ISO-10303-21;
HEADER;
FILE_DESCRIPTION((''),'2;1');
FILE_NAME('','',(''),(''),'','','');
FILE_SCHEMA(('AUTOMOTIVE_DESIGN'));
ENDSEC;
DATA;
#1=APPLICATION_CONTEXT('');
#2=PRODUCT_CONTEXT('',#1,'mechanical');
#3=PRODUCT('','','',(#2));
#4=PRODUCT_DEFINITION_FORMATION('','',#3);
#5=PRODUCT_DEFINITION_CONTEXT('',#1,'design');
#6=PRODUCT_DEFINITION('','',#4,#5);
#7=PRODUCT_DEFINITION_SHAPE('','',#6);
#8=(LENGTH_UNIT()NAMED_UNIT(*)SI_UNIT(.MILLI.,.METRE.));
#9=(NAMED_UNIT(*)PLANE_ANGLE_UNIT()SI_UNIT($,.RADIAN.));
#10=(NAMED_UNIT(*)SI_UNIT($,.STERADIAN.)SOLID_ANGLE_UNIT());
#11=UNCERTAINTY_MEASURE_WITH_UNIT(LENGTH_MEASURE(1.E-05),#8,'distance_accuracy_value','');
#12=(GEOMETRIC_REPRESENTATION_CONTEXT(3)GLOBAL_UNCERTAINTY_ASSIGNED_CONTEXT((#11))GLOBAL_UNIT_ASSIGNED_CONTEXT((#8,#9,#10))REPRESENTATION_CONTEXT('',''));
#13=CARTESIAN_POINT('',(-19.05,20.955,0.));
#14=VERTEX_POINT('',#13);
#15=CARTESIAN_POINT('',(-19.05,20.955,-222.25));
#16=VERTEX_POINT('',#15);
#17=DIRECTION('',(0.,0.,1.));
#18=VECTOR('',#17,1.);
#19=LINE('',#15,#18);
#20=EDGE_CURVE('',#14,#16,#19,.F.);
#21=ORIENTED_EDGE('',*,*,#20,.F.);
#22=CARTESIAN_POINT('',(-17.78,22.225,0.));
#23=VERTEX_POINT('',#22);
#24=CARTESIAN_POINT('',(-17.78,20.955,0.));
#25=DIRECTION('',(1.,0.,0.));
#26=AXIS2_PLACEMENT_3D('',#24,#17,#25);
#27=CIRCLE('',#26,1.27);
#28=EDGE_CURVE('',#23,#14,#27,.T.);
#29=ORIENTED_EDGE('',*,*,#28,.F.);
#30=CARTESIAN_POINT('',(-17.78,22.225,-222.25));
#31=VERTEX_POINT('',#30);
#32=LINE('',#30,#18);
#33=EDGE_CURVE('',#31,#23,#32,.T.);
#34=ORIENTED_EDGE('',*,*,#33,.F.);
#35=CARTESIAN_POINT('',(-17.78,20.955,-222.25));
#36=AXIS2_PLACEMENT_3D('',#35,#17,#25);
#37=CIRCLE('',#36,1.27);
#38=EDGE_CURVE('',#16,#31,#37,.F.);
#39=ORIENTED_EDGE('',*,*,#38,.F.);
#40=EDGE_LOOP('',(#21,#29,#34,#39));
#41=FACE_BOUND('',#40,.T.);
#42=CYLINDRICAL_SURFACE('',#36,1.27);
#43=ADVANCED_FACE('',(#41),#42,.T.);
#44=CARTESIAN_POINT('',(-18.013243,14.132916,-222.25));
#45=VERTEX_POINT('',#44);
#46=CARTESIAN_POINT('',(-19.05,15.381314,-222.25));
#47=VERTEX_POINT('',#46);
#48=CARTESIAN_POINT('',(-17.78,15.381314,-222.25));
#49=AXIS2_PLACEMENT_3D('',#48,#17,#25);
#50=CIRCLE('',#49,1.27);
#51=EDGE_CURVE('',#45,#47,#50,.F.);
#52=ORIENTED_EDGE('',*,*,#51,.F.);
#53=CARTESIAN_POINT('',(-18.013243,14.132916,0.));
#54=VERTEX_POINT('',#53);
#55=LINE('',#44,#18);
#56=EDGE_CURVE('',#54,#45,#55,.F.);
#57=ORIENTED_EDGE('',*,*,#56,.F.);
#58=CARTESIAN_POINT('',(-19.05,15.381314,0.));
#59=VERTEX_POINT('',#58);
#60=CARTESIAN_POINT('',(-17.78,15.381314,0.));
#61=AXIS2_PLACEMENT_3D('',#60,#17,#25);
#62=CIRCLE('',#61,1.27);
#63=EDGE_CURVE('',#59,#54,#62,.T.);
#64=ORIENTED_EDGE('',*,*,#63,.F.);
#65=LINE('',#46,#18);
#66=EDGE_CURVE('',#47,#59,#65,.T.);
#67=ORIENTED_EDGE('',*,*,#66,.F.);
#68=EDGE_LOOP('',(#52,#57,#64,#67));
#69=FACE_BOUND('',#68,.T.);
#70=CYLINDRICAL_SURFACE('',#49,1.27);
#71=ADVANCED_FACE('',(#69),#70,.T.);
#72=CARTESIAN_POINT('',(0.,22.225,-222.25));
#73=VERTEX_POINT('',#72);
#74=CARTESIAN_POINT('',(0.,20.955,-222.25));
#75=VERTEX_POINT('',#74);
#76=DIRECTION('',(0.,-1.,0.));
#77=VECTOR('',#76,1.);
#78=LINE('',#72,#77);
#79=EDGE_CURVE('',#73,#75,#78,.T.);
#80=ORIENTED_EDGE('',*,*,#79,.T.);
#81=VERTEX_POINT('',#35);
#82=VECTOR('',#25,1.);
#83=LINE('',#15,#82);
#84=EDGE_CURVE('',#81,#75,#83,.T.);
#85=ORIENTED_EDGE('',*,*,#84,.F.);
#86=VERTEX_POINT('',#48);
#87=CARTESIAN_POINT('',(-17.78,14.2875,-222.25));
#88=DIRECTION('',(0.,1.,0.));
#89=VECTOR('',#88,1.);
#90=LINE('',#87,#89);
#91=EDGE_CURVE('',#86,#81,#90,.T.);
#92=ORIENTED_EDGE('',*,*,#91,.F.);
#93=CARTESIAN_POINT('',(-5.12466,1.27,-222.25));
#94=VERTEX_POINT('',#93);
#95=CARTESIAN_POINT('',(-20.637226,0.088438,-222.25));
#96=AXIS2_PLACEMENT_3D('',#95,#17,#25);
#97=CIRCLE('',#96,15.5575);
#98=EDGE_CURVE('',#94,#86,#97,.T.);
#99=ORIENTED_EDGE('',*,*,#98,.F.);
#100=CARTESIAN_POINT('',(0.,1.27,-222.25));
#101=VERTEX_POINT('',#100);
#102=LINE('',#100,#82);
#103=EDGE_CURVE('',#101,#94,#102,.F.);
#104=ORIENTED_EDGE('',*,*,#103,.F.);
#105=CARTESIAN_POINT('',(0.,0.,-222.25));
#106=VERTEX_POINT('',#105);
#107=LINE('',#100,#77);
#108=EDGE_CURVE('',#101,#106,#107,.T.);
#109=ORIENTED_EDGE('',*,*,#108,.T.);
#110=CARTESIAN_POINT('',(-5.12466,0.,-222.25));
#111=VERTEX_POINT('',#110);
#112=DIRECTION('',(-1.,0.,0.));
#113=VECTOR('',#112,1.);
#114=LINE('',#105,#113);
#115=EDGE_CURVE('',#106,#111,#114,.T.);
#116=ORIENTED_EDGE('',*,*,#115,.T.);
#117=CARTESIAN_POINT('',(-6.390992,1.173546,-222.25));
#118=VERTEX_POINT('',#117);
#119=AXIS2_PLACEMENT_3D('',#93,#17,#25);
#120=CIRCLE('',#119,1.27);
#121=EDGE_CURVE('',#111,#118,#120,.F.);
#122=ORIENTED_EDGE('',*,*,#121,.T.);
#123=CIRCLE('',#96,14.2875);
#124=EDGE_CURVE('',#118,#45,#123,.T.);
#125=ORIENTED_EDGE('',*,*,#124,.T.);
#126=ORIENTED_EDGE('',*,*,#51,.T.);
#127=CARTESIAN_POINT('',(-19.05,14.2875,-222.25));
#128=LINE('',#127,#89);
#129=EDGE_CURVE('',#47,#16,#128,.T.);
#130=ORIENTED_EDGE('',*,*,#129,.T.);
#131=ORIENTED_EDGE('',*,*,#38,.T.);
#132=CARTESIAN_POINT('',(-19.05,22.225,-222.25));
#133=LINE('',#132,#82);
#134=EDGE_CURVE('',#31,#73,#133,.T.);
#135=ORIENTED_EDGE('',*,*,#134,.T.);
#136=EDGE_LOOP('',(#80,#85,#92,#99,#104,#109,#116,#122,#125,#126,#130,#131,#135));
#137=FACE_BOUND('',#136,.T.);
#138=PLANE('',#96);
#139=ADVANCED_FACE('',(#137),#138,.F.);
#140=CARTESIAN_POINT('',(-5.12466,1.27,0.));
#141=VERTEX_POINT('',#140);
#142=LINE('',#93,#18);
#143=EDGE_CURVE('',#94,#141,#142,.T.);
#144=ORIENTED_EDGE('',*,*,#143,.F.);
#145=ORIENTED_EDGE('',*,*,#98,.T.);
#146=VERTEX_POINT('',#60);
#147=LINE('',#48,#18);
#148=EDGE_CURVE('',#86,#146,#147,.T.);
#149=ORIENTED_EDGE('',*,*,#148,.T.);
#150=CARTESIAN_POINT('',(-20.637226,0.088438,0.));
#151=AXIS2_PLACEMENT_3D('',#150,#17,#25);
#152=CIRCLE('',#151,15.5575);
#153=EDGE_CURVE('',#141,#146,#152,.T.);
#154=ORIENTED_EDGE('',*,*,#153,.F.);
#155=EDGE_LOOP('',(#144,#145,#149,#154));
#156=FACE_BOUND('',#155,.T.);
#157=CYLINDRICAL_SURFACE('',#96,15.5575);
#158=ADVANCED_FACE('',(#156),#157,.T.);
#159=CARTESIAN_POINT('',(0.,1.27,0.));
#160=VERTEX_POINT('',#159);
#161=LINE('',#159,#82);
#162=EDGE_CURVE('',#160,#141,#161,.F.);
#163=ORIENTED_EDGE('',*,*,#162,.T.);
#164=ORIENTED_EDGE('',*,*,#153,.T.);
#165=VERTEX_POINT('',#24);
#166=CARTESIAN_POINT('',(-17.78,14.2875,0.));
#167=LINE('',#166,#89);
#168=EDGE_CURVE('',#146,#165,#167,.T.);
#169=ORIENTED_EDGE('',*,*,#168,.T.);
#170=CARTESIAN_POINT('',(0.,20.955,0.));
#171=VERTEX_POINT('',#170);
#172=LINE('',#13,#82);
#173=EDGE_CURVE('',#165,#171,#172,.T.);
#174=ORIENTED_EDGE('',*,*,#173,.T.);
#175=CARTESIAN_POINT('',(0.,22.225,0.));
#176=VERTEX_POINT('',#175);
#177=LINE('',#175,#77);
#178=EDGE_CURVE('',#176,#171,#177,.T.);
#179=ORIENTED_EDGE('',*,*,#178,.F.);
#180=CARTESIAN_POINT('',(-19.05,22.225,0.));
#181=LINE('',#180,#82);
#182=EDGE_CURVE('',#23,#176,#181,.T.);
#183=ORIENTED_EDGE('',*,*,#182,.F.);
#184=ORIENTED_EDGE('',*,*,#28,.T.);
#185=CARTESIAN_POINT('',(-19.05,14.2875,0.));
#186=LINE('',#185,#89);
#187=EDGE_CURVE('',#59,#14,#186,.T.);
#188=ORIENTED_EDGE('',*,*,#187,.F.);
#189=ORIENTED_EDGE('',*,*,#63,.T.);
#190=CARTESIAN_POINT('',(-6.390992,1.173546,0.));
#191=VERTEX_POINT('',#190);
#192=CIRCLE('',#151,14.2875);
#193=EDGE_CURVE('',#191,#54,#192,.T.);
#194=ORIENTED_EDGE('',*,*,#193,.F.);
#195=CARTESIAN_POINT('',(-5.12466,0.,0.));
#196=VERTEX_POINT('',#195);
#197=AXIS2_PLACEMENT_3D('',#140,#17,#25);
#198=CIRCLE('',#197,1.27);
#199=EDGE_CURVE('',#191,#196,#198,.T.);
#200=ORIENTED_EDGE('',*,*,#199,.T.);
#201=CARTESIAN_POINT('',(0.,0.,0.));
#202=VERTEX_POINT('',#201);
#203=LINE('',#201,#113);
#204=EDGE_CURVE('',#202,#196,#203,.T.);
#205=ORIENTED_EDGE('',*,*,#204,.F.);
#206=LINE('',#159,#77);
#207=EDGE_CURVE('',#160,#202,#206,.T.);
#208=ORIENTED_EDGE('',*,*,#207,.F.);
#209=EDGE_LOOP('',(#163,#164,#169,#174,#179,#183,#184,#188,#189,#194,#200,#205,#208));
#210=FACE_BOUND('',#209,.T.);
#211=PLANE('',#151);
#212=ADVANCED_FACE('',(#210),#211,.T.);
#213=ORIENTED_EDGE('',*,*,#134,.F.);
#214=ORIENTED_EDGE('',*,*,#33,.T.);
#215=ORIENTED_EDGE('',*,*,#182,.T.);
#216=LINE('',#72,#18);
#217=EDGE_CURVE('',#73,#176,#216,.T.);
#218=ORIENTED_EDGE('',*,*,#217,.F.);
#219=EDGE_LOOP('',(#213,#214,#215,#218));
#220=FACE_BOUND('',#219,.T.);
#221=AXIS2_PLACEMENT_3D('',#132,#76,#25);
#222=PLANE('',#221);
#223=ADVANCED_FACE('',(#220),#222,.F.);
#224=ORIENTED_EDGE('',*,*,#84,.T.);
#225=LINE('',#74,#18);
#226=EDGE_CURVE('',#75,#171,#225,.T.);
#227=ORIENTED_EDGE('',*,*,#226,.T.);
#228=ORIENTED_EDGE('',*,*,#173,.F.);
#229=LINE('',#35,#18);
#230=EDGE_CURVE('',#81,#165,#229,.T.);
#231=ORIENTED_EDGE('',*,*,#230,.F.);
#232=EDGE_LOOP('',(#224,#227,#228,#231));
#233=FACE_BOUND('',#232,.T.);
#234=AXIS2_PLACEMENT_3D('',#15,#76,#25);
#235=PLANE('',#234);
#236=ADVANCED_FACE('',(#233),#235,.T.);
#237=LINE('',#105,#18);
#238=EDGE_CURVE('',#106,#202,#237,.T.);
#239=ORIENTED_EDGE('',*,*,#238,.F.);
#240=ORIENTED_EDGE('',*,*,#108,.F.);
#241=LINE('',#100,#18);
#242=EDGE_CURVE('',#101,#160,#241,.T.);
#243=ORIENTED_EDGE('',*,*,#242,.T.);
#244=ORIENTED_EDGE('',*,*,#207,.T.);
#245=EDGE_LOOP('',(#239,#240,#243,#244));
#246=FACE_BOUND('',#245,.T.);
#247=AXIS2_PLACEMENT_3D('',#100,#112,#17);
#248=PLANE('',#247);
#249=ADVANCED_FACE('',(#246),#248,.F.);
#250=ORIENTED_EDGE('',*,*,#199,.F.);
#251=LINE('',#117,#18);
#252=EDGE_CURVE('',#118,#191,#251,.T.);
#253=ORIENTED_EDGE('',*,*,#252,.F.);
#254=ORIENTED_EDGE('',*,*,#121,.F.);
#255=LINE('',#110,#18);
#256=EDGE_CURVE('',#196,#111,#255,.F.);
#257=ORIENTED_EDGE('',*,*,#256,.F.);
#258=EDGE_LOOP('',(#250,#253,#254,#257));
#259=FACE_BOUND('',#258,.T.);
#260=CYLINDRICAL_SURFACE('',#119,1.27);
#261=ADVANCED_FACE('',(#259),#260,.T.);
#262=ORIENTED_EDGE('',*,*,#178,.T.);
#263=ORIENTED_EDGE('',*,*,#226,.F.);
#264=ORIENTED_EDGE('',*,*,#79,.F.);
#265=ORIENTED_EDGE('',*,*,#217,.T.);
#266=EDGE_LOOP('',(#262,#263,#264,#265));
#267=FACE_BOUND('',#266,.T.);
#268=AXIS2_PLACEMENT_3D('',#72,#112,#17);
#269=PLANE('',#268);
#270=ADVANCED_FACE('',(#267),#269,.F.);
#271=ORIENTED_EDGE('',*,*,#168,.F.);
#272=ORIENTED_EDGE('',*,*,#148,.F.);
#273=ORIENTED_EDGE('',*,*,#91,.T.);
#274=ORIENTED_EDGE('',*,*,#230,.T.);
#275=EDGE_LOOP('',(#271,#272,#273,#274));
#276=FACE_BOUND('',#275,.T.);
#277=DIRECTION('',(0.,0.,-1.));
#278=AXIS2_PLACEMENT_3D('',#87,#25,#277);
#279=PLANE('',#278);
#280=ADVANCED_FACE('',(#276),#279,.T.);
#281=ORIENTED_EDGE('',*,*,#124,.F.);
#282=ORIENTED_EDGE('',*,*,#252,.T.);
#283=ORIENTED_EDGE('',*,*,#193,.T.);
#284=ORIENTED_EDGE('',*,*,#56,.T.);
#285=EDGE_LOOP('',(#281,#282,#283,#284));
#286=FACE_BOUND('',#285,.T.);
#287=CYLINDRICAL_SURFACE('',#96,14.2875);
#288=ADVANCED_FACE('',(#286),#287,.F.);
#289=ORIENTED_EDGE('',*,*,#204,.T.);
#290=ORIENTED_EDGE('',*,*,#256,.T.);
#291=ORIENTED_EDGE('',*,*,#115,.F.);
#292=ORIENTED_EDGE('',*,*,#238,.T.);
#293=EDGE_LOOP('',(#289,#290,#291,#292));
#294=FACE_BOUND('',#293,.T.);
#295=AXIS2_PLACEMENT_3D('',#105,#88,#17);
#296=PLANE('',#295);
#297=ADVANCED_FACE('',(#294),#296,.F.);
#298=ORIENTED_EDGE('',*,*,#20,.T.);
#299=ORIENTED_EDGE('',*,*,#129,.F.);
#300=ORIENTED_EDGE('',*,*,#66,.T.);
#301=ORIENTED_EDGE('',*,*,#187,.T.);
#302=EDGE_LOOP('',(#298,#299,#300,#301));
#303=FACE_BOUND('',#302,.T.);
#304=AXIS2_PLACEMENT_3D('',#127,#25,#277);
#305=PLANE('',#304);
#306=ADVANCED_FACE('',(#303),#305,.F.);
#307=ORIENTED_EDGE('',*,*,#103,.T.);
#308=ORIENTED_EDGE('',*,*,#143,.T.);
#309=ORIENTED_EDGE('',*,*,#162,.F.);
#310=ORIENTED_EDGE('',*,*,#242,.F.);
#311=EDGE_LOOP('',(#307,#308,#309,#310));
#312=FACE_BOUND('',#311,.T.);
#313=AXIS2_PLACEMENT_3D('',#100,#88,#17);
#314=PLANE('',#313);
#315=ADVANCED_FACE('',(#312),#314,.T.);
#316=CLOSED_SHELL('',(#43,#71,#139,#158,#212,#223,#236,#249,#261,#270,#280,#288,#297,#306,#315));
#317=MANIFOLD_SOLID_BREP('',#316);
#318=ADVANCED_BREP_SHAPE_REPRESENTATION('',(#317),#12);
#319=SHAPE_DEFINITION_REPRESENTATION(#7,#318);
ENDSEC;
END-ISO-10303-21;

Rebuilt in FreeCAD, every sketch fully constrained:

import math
import FreeCAD as App
import Part
import Sketcher

V = App.Vector
Q = App.Units.Quantity


def edges_at(feature, points):
    """Names of the edges that pass closest to the given points."""
    edges = feature.Shape.Edges
    near = lambda p: min(range(len(edges)), key=lambda i: edges[i].distToShape(Part.Vertex(*p))[0])
    return sorted({f"Edge{near(p) + 1}" for p in points})

doc = App.newDocument("Part")
body = doc.addObject("PartDesign::Body", "Body")

sketch1 = body.newObject("Sketcher::SketchObject", "Sketch")
sketch1.AttachmentSupport = (doc.getObject("XY_Plane"), [""])
sketch1.MapMode = "FlatFace"
sketch1.addGeometry(Part.LineSegment(V(-6.35, 0, 0), V(0, 0, 0)), False)
sketch1.addGeometry(Part.LineSegment(V(0, 0, 0), V(0, 1.27, 0)), False)
sketch1.addGeometry(Part.LineSegment(V(0, 1.27, 0), V(-5.12466, 1.27, 0)), False)
sketch1.addGeometry(Part.ArcOfCircle(Part.Circle(V(-20.637226, 0.088438, 0), V(0, 0, 1), 15.5575), math.radians(4.355699), math.radians(79.417223)), False)
sketch1.addGeometry(Part.LineSegment(V(-17.78, 15.381314, 0), V(-17.78, 20.955, 0)), False)
sketch1.addGeometry(Part.LineSegment(V(-17.78, 20.955, 0), V(0, 20.955, 0)), False)
sketch1.addGeometry(Part.LineSegment(V(0, 20.955, 0), V(0, 22.225, 0)), False)
sketch1.addGeometry(Part.LineSegment(V(0, 22.225, 0), V(-19.05, 22.225, 0)), False)
sketch1.addGeometry(Part.LineSegment(V(-19.05, 22.225, 0), V(-19.05, 14.2875, 0)), False)
sketch1.addGeometry(Part.ArcOfCircle(Part.Circle(V(-20.637226, 0.088438, 0), V(0, 0, 1), 14.2875), math.radians(-0.354656), math.radians(83.621734)), False)
sketch1.addConstraint(Sketcher.Constraint("Coincident", 0, 2, 1, 1))
sketch1.addConstraint(Sketcher.Constraint("Coincident", 1, 2, 2, 1))
sketch1.addConstraint(Sketcher.Constraint("Coincident", 2, 2, 3, 1))
sketch1.addConstraint(Sketcher.Constraint("Coincident", 3, 2, 4, 1))
sketch1.addConstraint(Sketcher.Constraint("Coincident", 4, 2, 5, 1))
sketch1.addConstraint(Sketcher.Constraint("Coincident", 5, 2, 6, 1))
sketch1.addConstraint(Sketcher.Constraint("Coincident", 6, 2, 7, 1))
sketch1.addConstraint(Sketcher.Constraint("Coincident", 7, 2, 8, 1))
sketch1.addConstraint(Sketcher.Constraint("Coincident", 8, 2, 9, 2))
sketch1.addConstraint(Sketcher.Constraint("Coincident", 9, 1, 0, 1))
sketch1.addConstraint(Sketcher.Constraint("Horizontal", 0))
sketch1.addConstraint(Sketcher.Constraint("Vertical", 1))
sketch1.addConstraint(Sketcher.Constraint("Horizontal", 2))
sketch1.addConstraint(Sketcher.Constraint("Vertical", 4))
sketch1.addConstraint(Sketcher.Constraint("Horizontal", 5))
sketch1.addConstraint(Sketcher.Constraint("Vertical", 6))
sketch1.addConstraint(Sketcher.Constraint("Horizontal", 7))
sketch1.addConstraint(Sketcher.Constraint("Vertical", 8))
sketch1.addConstraint(Sketcher.Constraint("Coincident", 0, 2, -1, 1))
sketch1.addConstraint(Sketcher.Constraint("Coincident", 9, 3, 3, 3))
sketch1.addConstraint(Sketcher.Constraint("PointOnObject", 5, 2, -2))
sketch1.addConstraint(Sketcher.Constraint("Equal", 1, 6))
sketch1.addConstraint(Sketcher.Constraint("DistanceX", 5, 1, 5, 2, Q("0.7 in")))
sketch1.addConstraint(Sketcher.Constraint("Radius", 9, Q("0.5625 in")))
sketch1.addConstraint(Sketcher.Constraint("DistanceX", 0, 1, 0, 2, Q("0.25 in")))
sketch1.addConstraint(Sketcher.Constraint("DistanceX", 7, 2, 7, 1, Q("0.75 in")))
sketch1.addConstraint(Sketcher.Constraint("DistanceY", 1, 1, 1, 2, Q("0.05 in")))
sketch1.addConstraint(Sketcher.Constraint("Radius", 3, Q("0.6125 in")))
sketch1.addConstraint(Sketcher.Constraint("DistanceY", 8, 2, 8, 1, Q("0.3125 in")))
sketch1.addConstraint(Sketcher.Constraint("DistanceY", -1, 1, 4, 2, Q("0.825 in")))
pad1 = body.newObject("PartDesign::Pad", "Pad")
pad1.Profile = sketch1
pad1.Length = Q("8.75 in")
pad1.Reversed = True
doc.recompute()

fillet = body.newObject("PartDesign::Fillet", "Fillet")
fillet.Base = (pad1, edges_at(pad1, [(-6.35, 0, -111.125), (-19.05, 14.287, -111.125), (-19.05, 22.225, -111.125)]))
fillet.Radius = Q("0.05 in")

doc.recompute()
